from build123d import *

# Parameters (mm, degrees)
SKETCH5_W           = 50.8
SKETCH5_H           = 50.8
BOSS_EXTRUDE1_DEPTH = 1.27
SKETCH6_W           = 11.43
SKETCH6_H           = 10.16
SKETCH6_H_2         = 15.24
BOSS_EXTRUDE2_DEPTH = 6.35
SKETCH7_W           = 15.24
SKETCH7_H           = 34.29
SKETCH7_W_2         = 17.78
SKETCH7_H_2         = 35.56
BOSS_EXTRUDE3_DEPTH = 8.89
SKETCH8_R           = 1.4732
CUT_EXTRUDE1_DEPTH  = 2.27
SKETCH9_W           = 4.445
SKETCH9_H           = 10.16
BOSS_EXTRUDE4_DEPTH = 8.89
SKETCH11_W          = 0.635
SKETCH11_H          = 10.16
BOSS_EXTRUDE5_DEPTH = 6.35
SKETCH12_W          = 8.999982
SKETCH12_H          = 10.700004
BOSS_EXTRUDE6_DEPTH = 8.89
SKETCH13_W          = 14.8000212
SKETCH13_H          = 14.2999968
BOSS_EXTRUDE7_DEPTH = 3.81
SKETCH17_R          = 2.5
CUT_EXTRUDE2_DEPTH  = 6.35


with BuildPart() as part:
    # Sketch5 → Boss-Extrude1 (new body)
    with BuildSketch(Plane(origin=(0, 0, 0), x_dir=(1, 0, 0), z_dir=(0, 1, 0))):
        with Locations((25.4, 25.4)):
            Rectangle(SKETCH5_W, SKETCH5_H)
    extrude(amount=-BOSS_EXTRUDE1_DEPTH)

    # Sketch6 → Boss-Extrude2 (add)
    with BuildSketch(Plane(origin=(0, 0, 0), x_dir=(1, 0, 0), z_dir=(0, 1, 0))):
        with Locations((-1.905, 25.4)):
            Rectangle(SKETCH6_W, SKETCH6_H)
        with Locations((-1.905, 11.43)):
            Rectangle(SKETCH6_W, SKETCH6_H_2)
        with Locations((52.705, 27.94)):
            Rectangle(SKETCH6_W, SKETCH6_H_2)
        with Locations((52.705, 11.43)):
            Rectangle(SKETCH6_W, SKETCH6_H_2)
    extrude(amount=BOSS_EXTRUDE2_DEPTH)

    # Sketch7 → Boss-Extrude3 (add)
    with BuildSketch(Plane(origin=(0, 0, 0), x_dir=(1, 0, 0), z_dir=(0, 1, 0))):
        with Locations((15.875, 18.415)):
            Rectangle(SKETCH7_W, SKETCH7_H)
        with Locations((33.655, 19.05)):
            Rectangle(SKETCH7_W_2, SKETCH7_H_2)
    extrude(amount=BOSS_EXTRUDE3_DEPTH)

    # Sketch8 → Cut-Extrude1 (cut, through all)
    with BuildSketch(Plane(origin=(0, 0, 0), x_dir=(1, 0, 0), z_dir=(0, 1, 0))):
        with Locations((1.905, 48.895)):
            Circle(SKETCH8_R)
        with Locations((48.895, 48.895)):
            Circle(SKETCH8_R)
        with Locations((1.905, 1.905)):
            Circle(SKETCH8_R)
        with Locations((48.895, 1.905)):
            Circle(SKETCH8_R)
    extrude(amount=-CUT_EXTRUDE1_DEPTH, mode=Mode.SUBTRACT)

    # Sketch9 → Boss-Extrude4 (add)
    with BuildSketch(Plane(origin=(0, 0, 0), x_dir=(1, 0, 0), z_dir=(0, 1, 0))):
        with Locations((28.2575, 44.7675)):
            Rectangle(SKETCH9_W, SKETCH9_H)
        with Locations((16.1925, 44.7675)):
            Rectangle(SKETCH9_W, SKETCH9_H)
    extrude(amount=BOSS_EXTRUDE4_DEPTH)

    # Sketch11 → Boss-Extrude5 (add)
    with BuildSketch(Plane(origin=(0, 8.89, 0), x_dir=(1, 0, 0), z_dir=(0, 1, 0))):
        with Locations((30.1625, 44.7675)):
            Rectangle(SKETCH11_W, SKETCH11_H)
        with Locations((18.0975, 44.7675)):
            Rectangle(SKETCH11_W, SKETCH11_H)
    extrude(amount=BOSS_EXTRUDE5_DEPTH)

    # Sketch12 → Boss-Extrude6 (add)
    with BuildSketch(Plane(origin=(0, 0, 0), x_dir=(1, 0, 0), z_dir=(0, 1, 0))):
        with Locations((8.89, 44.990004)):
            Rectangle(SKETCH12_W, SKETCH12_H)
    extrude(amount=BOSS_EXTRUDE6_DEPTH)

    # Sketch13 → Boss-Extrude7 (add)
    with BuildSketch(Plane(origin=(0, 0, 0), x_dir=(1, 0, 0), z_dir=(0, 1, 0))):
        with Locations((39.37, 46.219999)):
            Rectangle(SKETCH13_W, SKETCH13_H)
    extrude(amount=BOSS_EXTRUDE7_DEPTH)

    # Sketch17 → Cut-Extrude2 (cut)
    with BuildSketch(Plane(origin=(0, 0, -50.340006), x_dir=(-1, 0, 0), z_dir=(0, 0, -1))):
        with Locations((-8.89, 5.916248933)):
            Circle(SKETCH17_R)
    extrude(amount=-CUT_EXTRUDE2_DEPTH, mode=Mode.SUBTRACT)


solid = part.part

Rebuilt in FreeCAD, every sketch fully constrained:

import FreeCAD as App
import Part
import Sketcher
from FreeCAD import Vector
Q = App.Units.Quantity

doc = App.newDocument("Part")
body = doc.addObject("PartDesign::Body", "Body")

# Sketch on XZ plane
sketch1 = body.newObject("Sketcher::SketchObject", "Sketch")
sketch1.AttachmentSupport = (doc.getObject("XZ_Plane"), [""])
sketch1.MapMode = "FlatFace"
sketch1.addGeometry(Part.LineSegment(Vector(0, -51, 0), Vector(0, 0, 0)), False)
sketch1.addGeometry(Part.LineSegment(Vector(0, 0, 0), Vector(51, 0, 0)), False)
sketch1.addGeometry(Part.LineSegment(Vector(51, 0, 0), Vector(51, -51, 0)), False)
sketch1.addGeometry(Part.LineSegment(Vector(51, -51, 0), Vector(0, -51, 0)), False)
sketch1.addConstraint(Sketcher.Constraint("Coincident", 0, 2, 1, 1))
sketch1.addConstraint(Sketcher.Constraint("Coincident", 1, 2, 2, 1))
sketch1.addConstraint(Sketcher.Constraint("Coincident", 2, 2, 3, 1))
sketch1.addConstraint(Sketcher.Constraint("Coincident", 3, 2, 0, 1))
sketch1.addConstraint(Sketcher.Constraint("Vertical", 0))
sketch1.addConstraint(Sketcher.Constraint("Horizontal", 1))
sketch1.addConstraint(Sketcher.Constraint("Vertical", 2))
sketch1.addConstraint(Sketcher.Constraint("Horizontal", 3))
sketch1.addConstraint(Sketcher.Constraint("Coincident", 0, 2, -1, 1))
sketch1.addConstraint(Sketcher.Constraint("Equal", 3, 0))
sketch1.addConstraint(Sketcher.Constraint("DistanceX", 1, 1, 1, 2, Q("2 in")))
pad1 = body.newObject("PartDesign::Pad", "Pad")
pad1.Profile = sketch1
pad1.Length = Q("0.05 in")

# Sketch on XZ plane
sketch2 = body.newObject("Sketcher::SketchObject", "Sketch001")
sketch2.AttachmentSupport = (doc.getObject("XZ_Plane"), [""])
sketch2.MapMode = "FlatFace"
sketch2.addGeometry(Part.LineSegment(Vector(-8, -30, 0), Vector(-8, -20, 0)), False)
sketch2.addGeometry(Part.LineSegment(Vector(-8, -20, 0), Vector(4, -20, 0)), False)
sketch2.addGeometry(Part.LineSegment(Vector(4, -20, 0), Vector(4, -30, 0)), False)
sketch2.addGeometry(Part.LineSegment(Vector(4, -30, 0), Vector(-8, -30, 0)), False)
sketch2.addGeometry(Part.LineSegment(Vector(-8, -19, 0), Vector(-8, -4, 0)), False)
sketch2.addGeometry(Part.LineSegment(Vector(-8, -4, 0), Vector(4, -4, 0)), False)
sketch2.addGeometry(Part.LineSegment(Vector(4, -4, 0), Vector(4, -19, 0)), False)
sketch2.addGeometry(Part.LineSegment(Vector(4, -19, 0), Vector(-8, -19, 0)), False)
sketch2.addGeometry(Part.LineSegment(Vector(47, -36, 0), Vector(47, -20, 0)), False)
sketch2.addGeometry(Part.LineSegment(Vector(47, -20, 0), Vector(58, -20, 0)), False)
sketch2.addGeometry(Part.LineSegment(Vector(58, -20, 0), Vector(58, -36, 0)), False)
sketch2.addGeometry(Part.LineSegment(Vector(58, -36, 0), Vector(47, -36, 0)), False)
sketch2.addGeometry(Part.LineSegment(Vector(47, -19, 0), Vector(47, -4, 0)), False)
sketch2.addGeometry(Part.LineSegment(Vector(47, -4, 0), Vector(58, -4, 0)), False)
sketch2.addGeometry(Part.LineSegment(Vector(58, -4, 0), Vector(58, -19, 0)), False)
sketch2.addGeometry(Part.LineSegment(Vector(58, -19, 0), Vector(47, -19, 0)), False)
sketch2.addConstraint(Sketcher.Constraint("Coincident", 0, 2, 1, 1))
sketch2.addConstraint(Sketcher.Constraint("Coincident", 1, 2, 2, 1))
sketch2.addConstraint(Sketcher.Constraint("Coincident", 2, 2, 3, 1))
sketch2.addConstraint(Sketcher.Constraint("Coincident", 3, 2, 0, 1))
sketch2.addConstraint(Sketcher.Constraint("Coincident", 4, 2, 5, 1))
sketch2.addConstraint(Sketcher.Constraint("Coincident", 5, 2, 6, 1))
sketch2.addConstraint(Sketcher.Constraint("Coincident", 6, 2, 7, 1))
sketch2.addConstraint(Sketcher.Constraint("Coincident", 7, 2, 4, 1))
sketch2.addConstraint(Sketcher.Constraint("Coincident", 8, 2, 9, 1))
sketch2.addConstraint(Sketcher.Constraint("Coincident", 9, 2, 10, 1))
sketch2.addConstraint(Sketcher.Constraint("Coincident", 10, 2, 11, 1))
sketch2.addConstraint(Sketcher.Constraint("Coincident", 11, 2, 8, 1))
sketch2.addConstraint(Sketcher.Constraint("Coincident", 12, 2, 13, 1))
sketch2.addConstraint(Sketcher.Constraint("Coincident", 13, 2, 14, 1))
sketch2.addConstraint(Sketcher.Constraint("Coincident", 14, 2, 15, 1))
sketch2.addConstraint(Sketcher.Constraint("Coincident", 15, 2, 12, 1))
sketch2.addConstraint(Sketcher.Constraint("Vertical", 0))
sketch2.addConstraint(Sketcher.Constraint("Horizontal", 1))
sketch2.addConstraint(Sketcher.Constraint("Vertical", 2))
sketch2.addConstraint(Sketcher.Constraint("Horizontal", 3))
sketch2.addConstraint(Sketcher.Constraint("Vertical", 4))
sketch2.addConstraint(Sketcher.Constraint("Horizontal", 5))
sketch2.addConstraint(Sketcher.Constraint("Vertical", 6))
sketch2.addConstraint(Sketcher.Constraint("Horizontal", 7))
sketch2.addConstraint(Sketcher.Constraint("Vertical", 8))
sketch2.addConstraint(Sketcher.Constraint("Horizontal", 9))
sketch2.addConstraint(Sketcher.Constraint("Vertical", 10))
sketch2.addConstraint(Sketcher.Constraint("Horizontal", 11))
sketch2.addConstraint(Sketcher.Constraint("Vertical", 12))
sketch2.addConstraint(Sketcher.Constraint("Horizontal", 13))
sketch2.addConstraint(Sketcher.Constraint("Vertical", 14))
sketch2.addConstraint(Sketcher.Constraint("Horizontal", 15))
sketch2.addConstraint(Sketcher.Constraint("Horizontal", 1, 2, 8, 2))
sketch2.addConstraint(Sketcher.Constraint("Horizontal", 5, 2, 12, 2))
sketch2.addConstraint(Sketcher.Constraint("Horizontal", 7, 2, 14, 2))
sketch2.addConstraint(Sketcher.Constraint("Vertical", 3, 2, 4, 2))
sketch2.addConstraint(Sketcher.Constraint("Vertical", 2, 2, 5, 2))
sketch2.addConstraint(Sketcher.Constraint("Vertical", 11, 2, 12, 2))
sketch2.addConstraint(Sketcher.Constraint("Vertical", 10, 2, 13, 2))
sketch2.addConstraint(Sketcher.Constraint("Equal", 7, 9))
sketch2.addConstraint(Sketcher.Constraint("Equal", 6, 8))
sketch2.addConstraint(Sketcher.Constraint("DistanceY", 0, 1, 0, 2, Q("0.4 in")))
sketch2.addConstraint(Sketcher.Constraint("DistanceY", 4, 1, 4, 2, Q("0.6 in")))
sketch2.addConstraint(Sketcher.Constraint("DistanceX", 1, 1, 1, 2, Q("0.45 in")))
sketch2.addConstraint(Sketcher.Constraint("DistanceX", 0, 2, -1, 1, Q("0.3 in")))
sketch2.addConstraint(Sketcher.Constraint("DistanceY", 0, 2, -1, 1, Q("0.8 in")))
sketch2.addConstraint(Sketcher.Constraint("DistanceX", -1, 1, 9, 2, Q("2.3 in")))
sketch2.addConstraint(Sketcher.Constraint("DistanceY", 4, 2, -1, 1, Q("0.15 in")))
pad2 = body.newObject("PartDesign::Pad", "Pad001")
pad2.Profile = sketch2
pad2.Length = Q("0.25 in")
pad2.Reversed = True

# Sketch on XZ plane
sketch3 = body.newObject("Sketcher::SketchObject", "Sketch002")
sketch3.AttachmentSupport = (doc.getObject("XZ_Plane"), [""])
sketch3.MapMode = "FlatFace"
sketch3.addGeometry(Part.LineSegment(Vector(8, -36, 0), Vector(8, -1, 0)), False)
sketch3.addGeometry(Part.LineSegment(Vector(8, -1, 0), Vector(23, -1, 0)), False)
sketch3.addGeometry(Part.LineSegment(Vector(23, -1, 0), Vector(23, -36, 0)), False)
sketch3.addGeometry(Part.LineSegment(Vector(23, -36, 0), Vector(8, -36, 0)), False)
sketch3.addGeometry(Part.LineSegment(Vector(25, -37, 0), Vector(25, -1, 0)), False)
sketch3.addGeometry(Part.LineSegment(Vector(25, -1, 0), Vector(43, -1, 0)), False)
sketch3.addGeometry(Part.LineSegment(Vector(43, -1, 0), Vector(43, -37, 0)), False)
sketch3.addGeometry(Part.LineSegment(Vector(43, -37, 0), Vector(25, -37, 0)), False)
sketch3.addConstraint(Sketcher.Constraint("Coincident", 0, 2, 1, 1))
sketch3.addConstraint(Sketcher.Constraint("Coincident", 1, 2, 2, 1))
sketch3.addConstraint(Sketcher.Constraint("Coincident", 2, 2, 3, 1))
sketch3.addConstraint(Sketcher.Constraint("Coincident", 3, 2, 0, 1))
sketch3.addConstraint(Sketcher.Constraint("Coincident", 4, 2, 5, 1))
sketch3.addConstraint(Sketcher.Constraint("Coincident", 5, 2, 6, 1))
sketch3.addConstraint(Sketcher.Constraint("Coincident", 6, 2, 7, 1))
sketch3.addConstraint(Sketcher.Constraint("Coincident", 7, 2, 4, 1))
sketch3.addConstraint(Sketcher.Constraint("Vertical", 0))
sketch3.addConstraint(Sketcher.Constraint("Horizontal", 1))
sketch3.addConstraint(Sketcher.Constraint("Vertical", 2))
sketch3.addConstraint(Sketcher.Constraint("Horizontal", 3))
sketch3.addConstraint(Sketcher.Constraint("Vertical", 4))
sketch3.addConstraint(Sketcher.Constraint("Horizontal", 5))
sketch3.addConstraint(Sketcher.Constraint("Vertical", 6))
sketch3.addConstraint(Sketcher.Constraint("Horizontal", 7))
sketch3.addConstraint(Sketcher.Constraint("Horizontal", 1, 2, 4, 2))
sketch3.addConstraint(Sketcher.Constraint("DistanceX", 1, 1, 1, 2, Q("0.6 in")))
sketch3.addConstraint(Sketcher.Constraint("DistanceX", 5, 1, 5, 2, Q("0.7 in")))
sketch3.addConstraint(Sketcher.Constraint("DistanceY", 4, 1, 4, 2, Q("1.4 in")))
sketch3.addConstraint(Sketcher.Constraint("DistanceY", 0, 1, 0, 2, Q("1.35 in")))
sketch3.addConstraint(Sketcher.Constraint("DistanceY", 2, 2, -1, 1, Q("1.4 in")))
sketch3.addConstraint(Sketcher.Constraint("DistanceX", 1, 2, 4, 2, Q("0.05 in")))
sketch3.addConstraint(Sketcher.Constraint("DistanceX", -1, 1, 0, 2, Q("0.325 in")))
pad3 = body.newObject("PartDesign::Pad", "Pad002")
pad3.Profile = sketch3
pad3.Length = Q("0.35 in")
pad3.Reversed = True

# Sketch on XZ plane
sketch4 = body.newObject("Sketcher::SketchObject", "Sketch003")
sketch4.AttachmentSupport = (doc.getObject("XZ_Plane"), [""])
sketch4.MapMode = "FlatFace"
sketch4.addGeometry(Part.Circle(Vector(1.9, -48.9, 0), Vector(0, 0, 1), 1.5), False)
sketch4.addGeometry(Part.Circle(Vector(48.9, -48.9, 0), Vector(0, 0, 1), 1.5), False)
sketch4.addGeometry(Part.Circle(Vector(1.9, -1.9, 0), Vector(0, 0, 1), 1.5), False)
sketch4.addGeometry(Part.Circle(Vector(48.9, -1.9, 0), Vector(0, 0, 1), 1.5), False)
sketch4.addConstraint(Sketcher.Constraint("Equal", 0, 1))
sketch4.addConstraint(Sketcher.Constraint("Equal", 1, 2))
sketch4.addConstraint(Sketcher.Constraint("Equal", 2, 3))
sketch4.addConstraint(Sketcher.Constraint("Horizontal", 0, 3, 1, 3))
sketch4.addConstraint(Sketcher.Constraint("Horizontal", 2, 3, 3, 3))
sketch4.addConstraint(Sketcher.Constraint("Vertical", 0, 3, 2, 3))
sketch4.addConstraint(Sketcher.Constraint("Vertical", 1, 3, 3, 3))
sketch4.addConstraint(Sketcher.Constraint("Diameter", 0, Q("0.116 in")))
sketch4.addConstraint(Sketcher.Constraint("DistanceX", 0, 3, 1, 3, Q("1.85 in")))
sketch4.addConstraint(Sketcher.Constraint("DistanceY", 0, 3, 2, 3, Q("1.85 in")))
sketch4.addConstraint(Sketcher.Constraint("DistanceX", -1, 1, 0, 3, Q("0.075 in")))
sketch4.addConstraint(Sketcher.Constraint("DistanceY", 0, 3, -1, 1, Q("1.925 in")))
pocket1 = body.newObject("PartDesign::Pocket", "Pocket")
pocket1.Profile = sketch4
pocket1.Type = "ThroughAll"
pocket1.Reversed = True

# Sketch on XZ plane
sketch5 = body.newObject("Sketcher::SketchObject", "Sketch004")
sketch5.AttachmentSupport = (doc.getObject("XZ_Plane"), [""])
sketch5.MapMode = "FlatFace"
sketch5.addGeometry(Part.LineSegment(Vector(26, -49.8, 0), Vector(26, -39.7, 0)), False)
sketch5.addGeometry(Part.LineSegment(Vector(26, -39.7, 0), Vector(30.5, -39.7, 0)), False)
sketch5.addGeometry(Part.LineSegment(Vector(30.5, -39.7, 0), Vector(30.5, -49.8, 0)), False)
sketch5.addGeometry(Part.LineSegment(Vector(30.5, -49.8, 0), Vector(26, -49.8, 0)), False)
sketch5.addGeometry(Part.LineSegment(Vector(14, -49.8, 0), Vector(14, -39.7, 0)), False)
sketch5.addGeometry(Part.LineSegment(Vector(14, -39.7, 0), Vector(18.4, -39.7, 0)), False)
sketch5.addGeometry(Part.LineSegment(Vector(18.4, -39.7, 0), Vector(18.4, -49.8, 0)), False)
sketch5.addGeometry(Part.LineSegment(Vector(18.4, -49.8, 0), Vector(14, -49.8, 0)), False)
sketch5.addConstraint(Sketcher.Constraint("Coincident", 0, 2, 1, 1))
sketch5.addConstraint(Sketcher.Constraint("Coincident", 1, 2, 2, 1))
sketch5.addConstraint(Sketcher.Constraint("Coincident", 2, 2, 3, 1))
sketch5.addConstraint(Sketcher.Constraint("Coincident", 3, 2, 0, 1))
sketch5.addConstraint(Sketcher.Constraint("Coincident", 4, 2, 5, 1))
sketch5.addConstraint(Sketcher.Constraint("Coincident", 5, 2, 6, 1))
sketch5.addConstraint(Sketcher.Constraint("Coincident", 6, 2, 7, 1))
sketch5.addConstraint(Sketcher.Constraint("Coincident", 7, 2, 4, 1))
sketch5.addConstraint(Sketcher.Constraint("Vertical", 0))
sketch5.addConstraint(Sketcher.Constraint("Horizontal", 1))
sketch5.addConstraint(Sketcher.Constraint("Vertical", 2))
sketch5.addConstraint(Sketcher.Constraint("Horizontal", 3))
sketch5.addConstraint(Sketcher.Constraint("Vertical", 4))
sketch5.addConstraint(Sketcher.Constraint("Horizontal", 5))
sketch5.addConstraint(Sketcher.Constraint("Vertical", 6))
sketch5.addConstraint(Sketcher.Constraint("Horizontal", 7))
sketch5.addConstraint(Sketcher.Constraint("Horizontal", 1, 2, 4, 2))
sketch5.addConstraint(Sketcher.Constraint("Horizontal", 3, 2, 6, 2))
sketch5.addConstraint(Sketcher.Constraint("Equal", 3, 5))
sketch5.addConstraint(Sketcher.Constraint("DistanceY", 0, 1, 0, 2, Q("0.4 in")))
sketch5.addConstraint(Sketcher.Constraint("DistanceX", -1, 1, 1, 2, Q("1.2 in")))
sketch5.addConstraint(Sketcher.Constraint("DistanceX", 5, 2, 0, 2, Q("0.3 in")))
sketch5.addConstraint(Sketcher.Constraint("DistanceX", 1, 1, 1, 2, Q("0.175 in")))
sketch5.addConstraint(Sketcher.Constraint("DistanceY", 0, 2, -1, 1, Q("1.5625 in")))
pad4 = body.newObject("PartDesign::Pad", "Pad003")
pad4.Profile = sketch5
pad4.Length = Q("0.35 in")
pad4.Reversed = True

# Sketch on XZ plane
sketch6 = body.newObject("Sketcher::SketchObject", "Sketch005")
sketch6.AttachmentSupport = (doc.getObject("XZ_Plane"), [""])
sketch6.MapMode = "FlatFace"
sketch6.AttachmentOffset = App.Placement(Vector(0, 0, -0.35 * 25.4), App.Rotation())
sketch6.addGeometry(Part.LineSegment(Vector(29.8, -49.8, 0), Vector(29.8, -39.7, 0)), False)
sketch6.addGeometry(Part.LineSegment(Vector(29.8, -39.7, 0), Vector(30.5, -39.7, 0)), False)
sketch6.addGeometry(Part.LineSegment(Vector(30.5, -39.7, 0), Vector(30.5, -49.8, 0)), False)
sketch6.addGeometry(Part.LineSegment(Vector(30.5, -49.8, 0), Vector(29.8, -49.8, 0)), False)
sketch6.addGeometry(Part.LineSegment(Vector(17.8, -49.8, 0), Vector(17.8, -39.7, 0)), False)
sketch6.addGeometry(Part.LineSegment(Vector(17.8, -39.7, 0), Vector(18.4, -39.7, 0)), False)
sketch6.addGeometry(Part.LineSegment(Vector(18.4, -39.7, 0), Vector(18.4, -49.8, 0)), False)
sketch6.addGeometry(Part.LineSegment(Vector(18.4, -49.8, 0), Vector(17.8, -49.8, 0)), False)
sketch6.addConstraint(Sketcher.Constraint("Coincident", 0, 2, 1, 1))
sketch6.addConstraint(Sketcher.Constraint("Coincident", 1, 2, 2, 1))
sketch6.addConstraint(Sketcher.Constraint("Coincident", 2, 2, 3, 1))
sketch6.addConstraint(Sketcher.Constraint("Coincident", 3, 2, 0, 1))
sketch6.addConstraint(Sketcher.Constraint("Coincident", 4, 2, 5, 1))
sketch6.addConstraint(Sketcher.Constraint("Coincident", 5, 2, 6, 1))
sketch6.addConstraint(Sketcher.Constraint("Coincident", 6, 2, 7, 1))
sketch6.addConstraint(Sketcher.Constraint("Coincident", 7, 2, 4, 1))
sketch6.addConstraint(Sketcher.Constraint("Vertical", 0))
sketch6.addConstraint(Sketcher.Constraint("Horizontal", 1))
sketch6.addConstraint(Sketcher.Constraint("Vertical", 2))
sketch6.addConstraint(Sketcher.Constraint("Horizontal", 3))
sketch6.addConstraint(Sketcher.Constraint("Vertical", 4))
sketch6.addConstraint(Sketcher.Constraint("Horizontal", 5))
sketch6.addConstraint(Sketcher.Constraint("Vertical", 6))
sketch6.addConstraint(Sketcher.Constraint("Horizontal", 7))
sketch6.addConstraint(Sketcher.Constraint("Horizontal", 1, 2, 4, 2))
sketch6.addConstraint(Sketcher.Constraint("Horizontal", 3, 2, 6, 2))
sketch6.addConstraint(Sketcher.Constraint("Equal", 3, 5))
sketch6.addConstraint(Sketcher.Constraint("DistanceY", 0, 1, 0, 2, Q("0.4 in")))
sketch6.addConstraint(Sketcher.Constraint("DistanceX", -1, 1, 1, 2, Q("1.2 in")))
sketch6.addConstraint(Sketcher.Constraint("DistanceX", -1, 1, 4, 2, Q("0.7 in")))
sketch6.addConstraint(Sketcher.Constraint("DistanceX", 1, 1, 1, 2, Q("0.025 in")))
sketch6.addConstraint(Sketcher.Constraint("DistanceY", 0, 2, -1, 1, Q("1.5625 in")))
pad5 = body.newObject("PartDesign::Pad", "Pad004")
pad5.Profile = sketch6
pad5.Length = Q("0.25 in")
pad5.Reversed = True

# Sketch on XZ plane
sketch7 = body.newObject("Sketcher::SketchObject", "Sketch006")
sketch7.AttachmentSupport = (doc.getObject("XZ_Plane"), [""])
sketch7.MapMode = "FlatFace"
sketch7.addGeometry(Part.LineSegment(Vector(4, -50, 0), Vector(4, -40, 0)), False)
sketch7.addGeometry(Part.LineSegment(Vector(4, -40, 0), Vector(13, -40, 0)), False)
sketch7.addGeometry(Part.LineSegment(Vector(13, -40, 0), Vector(13, -50, 0)), False)
sketch7.addGeometry(Part.LineSegment(Vector(13, -50, 0), Vector(4, -50, 0)), False)
sketch7.addConstraint(Sketcher.Constraint("Coincident", 0, 2, 1, 1))
sketch7.addConstraint(Sketcher.Constraint("Coincident", 1, 2, 2, 1))
sketch7.addConstraint(Sketcher.Constraint("Coincident", 2, 2, 3, 1))
sketch7.addConstraint(Sketcher.Constraint("Coincident", 3, 2, 0, 1))
sketch7.addConstraint(Sketcher.Constraint("Vertical", 0))
sketch7.addConstraint(Sketcher.Constraint("Horizontal", 1))
sketch7.addConstraint(Sketcher.Constraint("Vertical", 2))
sketch7.addConstraint(Sketcher.Constraint("Horizontal", 3))
sketch7.addConstraint(Sketcher.Constraint("DistanceX", 1, 1, 1, 2, Q("8.999982 mm")))
sketch7.addConstraint(Sketcher.Constraint("DistanceY", 0, 1, 0, 2, Q("10.700004 mm")))
sketch7.addConstraint(Sketcher.Constraint("DistanceX", -1, 1, 0, 2, Q("4.390009 mm")))
sketch7.addConstraint(Sketcher.Constraint("DistanceY", 0, 2, -1, 1, Q("39.640002 mm")))
pad6 = body.newObject("PartDesign::Pad", "Pad005")
pad6.Profile = sketch7
pad6.Length = Q("0.35 in")
pad6.Reversed = True

# Sketch on XZ plane
sketch8 = body.newObject("Sketcher::SketchObject", "Sketch007")
sketch8.AttachmentSupport = (doc.getObject("XZ_Plane"), [""])
sketch8.MapMode = "FlatFace"
sketch8.addGeometry(Part.LineSegment(Vector(32, -53, 0), Vector(32, -39, 0)), False)
sketch8.addGeometry(Part.LineSegment(Vector(32, -39, 0), Vector(47, -39, 0)), False)
sketch8.addGeometry(Part.LineSegment(Vector(47, -39, 0), Vector(47, -53, 0)), False)
sketch8.addGeometry(Part.LineSegment(Vector(47, -53, 0), Vector(32, -53, 0)), False)
sketch8.addConstraint(Sketcher.Constraint("Coincident", 0, 2, 1, 1))
sketch8.addConstraint(Sketcher.Constraint("Coincident", 1, 2, 2, 1))
sketch8.addConstraint(Sketcher.Constraint("Coincident", 2, 2, 3, 1))
sketch8.addConstraint(Sketcher.Constraint("Coincident", 3, 2, 0, 1))
sketch8.addConstraint(Sketcher.Constraint("Vertical", 0))
sketch8.addConstraint(Sketcher.Constraint("Horizontal", 1))
sketch8.addConstraint(Sketcher.Constraint("Vertical", 2))
sketch8.addConstraint(Sketcher.Constraint("Horizontal", 3))
sketch8.addConstraint(Sketcher.Constraint("DistanceX", 1, 1, 1, 2, Q("14.800021 mm")))
sketch8.addConstraint(Sketcher.Constraint("DistanceY", 0, 2, -1, 1, Q("39.070001 mm")))
sketch8.addConstraint(Sketcher.Constraint("DistanceY", 0, 1, 0, 2, Q("14.299997 mm")))
sketch8.addConstraint(Sketcher.Constraint("DistanceX", -1, 1, 0, 2, Q("31.969989 mm")))
pad7 = body.newObject("PartDesign::Pad", "Pad006")
pad7.Profile = sketch8
pad7.Length = Q("0.15 in")
pad7.Reversed = True

# Sketch on XY plane
sketch9 = body.newObject("Sketcher::SketchObject", "Sketch008")
sketch9.AttachmentSupport = (doc.getObject("XY_Plane"), [""])
sketch9.MapMode = "FlatFace"
sketch9.AttachmentOffset = App.Placement(Vector(0, 0, -50.340006), App.Rotation())
sketch9.addGeometry(Part.Circle(Vector(8.9, 5.9, 0), Vector(0, 0, 1), 2.5), False)
sketch9.addConstraint(Sketcher.Constraint("Diameter", 0, Q("5 mm")))
sketch9.addConstraint(Sketcher.Constraint("DistanceX", -1, 1, 0, 3, Q("0.35 in")))
sketch9.addConstraint(Sketcher.Constraint("DistanceY", -1, 1, 0, 3, Q("5.916249 mm")))
pocket2 = body.newObject("PartDesign::Pocket", "Pocket001")
pocket2.Profile = sketch9
pocket2.Length = Q("0.25 in")
pocket2.Reversed = True

doc.recompute()
